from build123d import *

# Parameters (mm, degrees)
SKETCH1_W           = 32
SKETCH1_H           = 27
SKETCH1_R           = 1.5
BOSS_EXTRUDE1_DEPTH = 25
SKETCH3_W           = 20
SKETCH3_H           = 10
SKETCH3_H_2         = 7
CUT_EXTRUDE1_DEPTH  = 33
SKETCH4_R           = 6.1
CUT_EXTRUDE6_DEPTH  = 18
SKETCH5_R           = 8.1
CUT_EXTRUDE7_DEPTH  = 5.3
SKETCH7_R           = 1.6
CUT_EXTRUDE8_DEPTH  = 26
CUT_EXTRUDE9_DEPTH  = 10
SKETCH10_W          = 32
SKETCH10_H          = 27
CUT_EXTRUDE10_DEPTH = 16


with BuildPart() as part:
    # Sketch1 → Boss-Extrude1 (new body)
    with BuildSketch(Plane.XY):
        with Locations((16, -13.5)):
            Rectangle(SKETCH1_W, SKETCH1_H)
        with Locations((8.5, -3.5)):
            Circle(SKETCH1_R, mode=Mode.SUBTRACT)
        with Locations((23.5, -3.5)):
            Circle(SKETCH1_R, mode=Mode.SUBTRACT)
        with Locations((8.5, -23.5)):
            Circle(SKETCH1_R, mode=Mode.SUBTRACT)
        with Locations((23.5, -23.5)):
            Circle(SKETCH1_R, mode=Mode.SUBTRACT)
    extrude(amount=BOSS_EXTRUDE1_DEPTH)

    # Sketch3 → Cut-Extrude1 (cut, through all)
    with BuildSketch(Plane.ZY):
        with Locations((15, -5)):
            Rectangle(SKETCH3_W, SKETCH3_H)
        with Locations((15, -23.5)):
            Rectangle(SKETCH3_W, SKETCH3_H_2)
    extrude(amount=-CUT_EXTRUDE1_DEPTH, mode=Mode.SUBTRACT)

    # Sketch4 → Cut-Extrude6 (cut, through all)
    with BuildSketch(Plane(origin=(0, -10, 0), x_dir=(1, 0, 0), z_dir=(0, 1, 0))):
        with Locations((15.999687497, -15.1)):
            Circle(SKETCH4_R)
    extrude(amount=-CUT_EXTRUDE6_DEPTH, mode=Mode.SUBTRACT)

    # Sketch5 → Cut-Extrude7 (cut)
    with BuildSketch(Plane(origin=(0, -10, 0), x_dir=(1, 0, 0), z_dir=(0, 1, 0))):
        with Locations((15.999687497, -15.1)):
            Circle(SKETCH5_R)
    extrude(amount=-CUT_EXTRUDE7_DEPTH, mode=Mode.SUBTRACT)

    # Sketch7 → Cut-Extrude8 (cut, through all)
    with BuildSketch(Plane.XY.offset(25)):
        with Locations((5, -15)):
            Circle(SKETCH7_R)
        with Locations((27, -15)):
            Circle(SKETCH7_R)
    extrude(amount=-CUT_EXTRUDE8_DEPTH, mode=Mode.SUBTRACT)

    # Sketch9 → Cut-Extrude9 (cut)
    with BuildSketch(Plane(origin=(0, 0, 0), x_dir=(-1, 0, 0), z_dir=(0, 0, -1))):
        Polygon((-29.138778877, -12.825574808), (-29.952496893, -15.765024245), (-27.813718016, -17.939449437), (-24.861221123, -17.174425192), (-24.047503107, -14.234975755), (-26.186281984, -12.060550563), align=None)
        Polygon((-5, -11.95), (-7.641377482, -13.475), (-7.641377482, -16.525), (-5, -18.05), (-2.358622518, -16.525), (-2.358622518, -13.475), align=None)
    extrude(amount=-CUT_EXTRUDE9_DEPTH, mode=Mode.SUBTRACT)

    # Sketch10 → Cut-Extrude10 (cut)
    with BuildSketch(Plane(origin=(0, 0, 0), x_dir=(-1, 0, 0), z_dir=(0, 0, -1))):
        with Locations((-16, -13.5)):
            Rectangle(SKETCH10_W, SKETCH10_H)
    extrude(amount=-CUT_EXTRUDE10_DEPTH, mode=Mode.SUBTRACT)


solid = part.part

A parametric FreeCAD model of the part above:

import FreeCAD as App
import Part
import Sketcher
Q = App.Units.Quantity


def add_polygon(sketch, points):
    """Adds a closed chain of lines whose ends are joined by coincident constraints."""
    first, n = sketch.GeometryCount, len(points)
    for a, b in zip(points, points[1:] + points[:1]):
        sketch.addGeometry(Part.LineSegment(App.Vector(*a, 0), App.Vector(*b, 0)), False)
    for i in range(n):
        sketch.addConstraint(Sketcher.Constraint("Coincident", first + i, 2, first + (i + 1) % n, 1))

doc = App.newDocument("Part")
params = doc.addObject("Spreadsheet::Sheet", "Params")
for row, (alias, value) in enumerate([
    ("sketch1_diameter", "3 mm"),
    ("sketch1_width", "32 mm"),
    ("sketch1_height", "27 mm"),
    ("pad1_length", "25 mm"),
    ("sketch2_width", "10 mm"),
    ("sketch2_width2", "7 mm"),
    ("sketch2_height", "20 mm"),
    ("sketch3_diameter", "12.2 mm"),
    ("sketch4_diameter", "16.2 mm"),
    ("pocket3_length", "5.3 mm"),
    ("sketch5_diameter", "3.2 mm"),
    ("sketch6_height", "3.05 mm"),
    ("pocket5_length", "10 mm"),
    ("sketch7_width", "32 mm"),
    ("sketch7_height", "27 mm"),
    ("pocket6_length", "16 mm"),
], start=1):
    params.set(f"A{row}", alias)
    params.set(f"B{row}", "=" + value)
    params.setAlias(f"B{row}", alias)

body = doc.addObject("PartDesign::Body", "Body")

# Sketch on XY plane
sketch1 = body.newObject("Sketcher::SketchObject", "Sketch")
sketch1.AttachmentSupport = (doc.getObject("XY_Plane"), [""])
sketch1.MapMode = "FlatFace"
add_polygon(sketch1, [(0, 0), (0, -27), (32, -27), (32, 0)])  # lines 0-3
sketch1.addGeometry(Part.Circle(App.Vector(8.5, -23.5, 0), App.Vector(0, 0, 1), 1.5), False)  # 4
sketch1.addGeometry(Part.Circle(App.Vector(23.5, -23.5, 0), App.Vector(0, 0, 1), 1.5), False)  # 5
sketch1.addGeometry(Part.Circle(App.Vector(8.5, -3.5, 0), App.Vector(0, 0, 1), 1.5), False)  # 6
sketch1.addGeometry(Part.Circle(App.Vector(23.5, -3.5, 0), App.Vector(0, 0, 1), 1.5), False)  # 7
sketch1.addConstraint(Sketcher.Constraint("Vertical", 0))
sketch1.addConstraint(Sketcher.Constraint("Horizontal", 1))
sketch1.addConstraint(Sketcher.Constraint("Vertical", 2))
sketch1.addConstraint(Sketcher.Constraint("Horizontal", 3))
sketch1.addConstraint(Sketcher.Constraint("Coincident", 3, 2, -1, 1))
sketch1.addConstraint(Sketcher.Constraint("Equal", 4, 5))
sketch1.addConstraint(Sketcher.Constraint("Equal", 5, 6))
sketch1.addConstraint(Sketcher.Constraint("Equal", 6, 7))
sketch1.addConstraint(Sketcher.Constraint("Horizontal", 4, 3, 5, 3))
sketch1.addConstraint(Sketcher.Constraint("Horizontal", 6, 3, 7, 3))
sketch1.addConstraint(Sketcher.Constraint("Vertical", 4, 3, 6, 3))
sketch1.addConstraint(Sketcher.Constraint("Vertical", 5, 3, 7, 3))
sketch1.addConstraint(Sketcher.Constraint("Diameter", 4, 3.0))
sketch1.addConstraint(Sketcher.Constraint("DistanceX", 1, 1, 1, 2, 32.0))
sketch1.addConstraint(Sketcher.Constraint("DistanceY", 0, 2, 0, 1, 27.0))
sketch1.addConstraint(Sketcher.Constraint("DistanceX", 4, 3, 5, 3, 15.0))
sketch1.addConstraint(Sketcher.Constraint("DistanceY", 4, 3, 6, 3, 20.0))
sketch1.addConstraint(Sketcher.Constraint("DistanceX", -1, 1, 4, 3, 8.5))
sketch1.addConstraint(Sketcher.Constraint("DistanceY", 4, 3, -1, 1, 23.5))
sketch1.setExpression("Constraints[16]", "Params.sketch1_diameter")
sketch1.setExpression("Constraints[17]", "Params.sketch1_width")
sketch1.setExpression("Constraints[18]", "Params.sketch1_height")
pad1 = body.newObject("PartDesign::Pad", "Pad")
pad1.Profile = sketch1
pad1.setExpression("Length", "Params.pad1_length")

# Sketch on YZ plane
sketch2 = body.newObject("Sketcher::SketchObject", "Sketch001")
sketch2.AttachmentSupport = (doc.getObject("YZ_Plane"), [""])
sketch2.MapMode = "FlatFace"
add_polygon(sketch2, [(0, 5), (-10, 5), (-10, 25), (0, 25)])  # lines 0-3
add_polygon(sketch2, [(-20, 5), (-27, 5), (-27, 25), (-20, 25)])  # lines 4-7
sketch2.addConstraint(Sketcher.Constraint("Horizontal", 0))
sketch2.addConstraint(Sketcher.Constraint("Vertical", 1))
sketch2.addConstraint(Sketcher.Constraint("Horizontal", 2))
sketch2.addConstraint(Sketcher.Constraint("Vertical", 3))
sketch2.addConstraint(Sketcher.Constraint("Horizontal", 4))
sketch2.addConstraint(Sketcher.Constraint("Vertical", 5))
sketch2.addConstraint(Sketcher.Constraint("Horizontal", 6))
sketch2.addConstraint(Sketcher.Constraint("Vertical", 7))
sketch2.addConstraint(Sketcher.Constraint("PointOnObject", 2, 2, -2))
sketch2.addConstraint(Sketcher.Constraint("Horizontal", 3, 2, 4, 2))
sketch2.addConstraint(Sketcher.Constraint("Horizontal", 2, 2, 5, 2))
sketch2.addConstraint(Sketcher.Constraint("DistanceX", 0, 2, 0, 1, 10.0))
sketch2.addConstraint(Sketcher.Constraint("DistanceX", 4, 2, 4, 1, 7.0))
sketch2.addConstraint(Sketcher.Constraint("DistanceY", 1, 1, 1, 2, 20.0))
sketch2.addConstraint(Sketcher.Constraint("DistanceY", -1, 1, 0, 2, 5.0))
sketch2.addConstraint(Sketcher.Constraint("DistanceX", 4, 2, -1, 1, 27.0))
sketch2.setExpression("Constraints[19]", "Params.sketch2_width")
sketch2.setExpression("Constraints[20]", "Params.sketch2_width2")
sketch2.setExpression("Constraints[21]", "Params.sketch2_height")
pocket1 = body.newObject("PartDesign::Pocket", "Pocket")
pocket1.Profile = sketch2
pocket1.Type = "ThroughAll"
pocket1.Reversed = True

# Sketch on XZ plane
sketch3 = body.newObject("Sketcher::SketchObject", "Sketch002")
sketch3.AttachmentSupport = (doc.getObject("XZ_Plane"), [""])
sketch3.MapMode = "FlatFace"
sketch3.AttachmentOffset = App.Placement(App.Vector(0, 0, 10), App.Rotation())
sketch3.addGeometry(Part.Circle(App.Vector(16, 15, 0), App.Vector(0, 0, 1), 6), False)
sketch3.addConstraint(Sketcher.Constraint("Diameter", 0, 12.2))
sketch3.addConstraint(Sketcher.Constraint("DistanceY", -1, 1, 0, 3, 15.1))
sketch3.addConstraint(Sketcher.Constraint("DistanceX", -1, 1, 0, 3, 15.999687))
sketch3.setExpression("Constraints[0]", "Params.sketch3_diameter")
pocket2 = body.newObject("PartDesign::Pocket", "Pocket001")
pocket2.Profile = sketch3
pocket2.Type = "ThroughAll"
pocket2.Reversed = True

# Sketch on XZ plane
sketch4 = body.newObject("Sketcher::SketchObject", "Sketch003")
sketch4.AttachmentSupport = (doc.getObject("XZ_Plane"), [""])
sketch4.MapMode = "FlatFace"
sketch4.AttachmentOffset = App.Placement(App.Vector(0, 0, 10), App.Rotation())
sketch4.addGeometry(Part.Circle(App.Vector(16, 15, 0), App.Vector(0, 0, 1), 8), False)
sketch4.addConstraint(Sketcher.Constraint("Diameter", 0, 16.2))
sketch4.addConstraint(Sketcher.Constraint("DistanceY", -1, 1, 0, 3, 15.1))
sketch4.addConstraint(Sketcher.Constraint("DistanceX", -1, 1, 0, 3, 15.999687))
sketch4.setExpression("Constraints[0]", "Params.sketch4_diameter")
pocket3 = body.newObject("PartDesign::Pocket", "Pocket002")
pocket3.Profile = sketch4
pocket3.setExpression("Length", "Params.pocket3_length")
pocket3.Reversed = True

# Sketch on XY plane
sketch5 = body.newObject("Sketcher::SketchObject", "Sketch004")
sketch5.AttachmentSupport = (doc.getObject("XY_Plane"), [""])
sketch5.MapMode = "FlatFace"
sketch5.AttachmentOffset = App.Placement(App.Vector(0, 0, 25), App.Rotation())
sketch5.addGeometry(Part.Circle(App.Vector(5, -15, 0), App.Vector(0, 0, 1), 1.6), False)
sketch5.addGeometry(Part.Circle(App.Vector(27, -15, 0), App.Vector(0, 0, 1), 1.6), False)
sketch5.addConstraint(Sketcher.Constraint("Equal", 0, 1))
sketch5.addConstraint(Sketcher.Constraint("Horizontal", 0, 3, 1, 3))
sketch5.addConstraint(Sketcher.Constraint("Diameter", 0, 3.2))
sketch5.addConstraint(Sketcher.Constraint("DistanceX", -1, 1, 0, 3, 5.0))
sketch5.addConstraint(Sketcher.Constraint("DistanceY", 0, 3, -1, 1, 15.0))
sketch5.addConstraint(Sketcher.Constraint("DistanceX", -1, 1, 1, 3, 27.0))
sketch5.setExpression("Constraints[2]", "Params.sketch5_diameter")
pocket4 = body.newObject("PartDesign::Pocket", "Pocket003")
pocket4.Profile = sketch5
pocket4.Type = "ThroughAll"

# Sketch on XY plane
sketch6 = body.newObject("Sketcher::SketchObject", "Sketch005")
sketch6.AttachmentSupport = (doc.getObject("XY_Plane"), [""])
sketch6.MapMode = "FlatFace"
add_polygon(sketch6, [(29.1, -12.8), (30, -15.8), (27.8, -17.9), (24.9, -17.2), (24, -14.2), (26.2, -12.1)])  # lines 0-5
add_polygon(sketch6, [(5, -11.9), (7.6, -13.5), (7.6, -16.5), (5, -18.1), (2.4, -16.5), (2.4, -13.5)])  # lines 6-11
sketch6.addConstraint(Sketcher.Constraint("Vertical", 7))
sketch6.addConstraint(Sketcher.Constraint("Vertical", 10))
sketch6.addConstraint(Sketcher.Constraint("Parallel", 0, 3))
sketch6.addConstraint(Sketcher.Constraint("Parallel", 1, 4))
sketch6.addConstraint(Sketcher.Constraint("Parallel", 2, 5))
sketch6.addConstraint(Sketcher.Constraint("Parallel", 6, 9))
sketch6.addConstraint(Sketcher.Constraint("Parallel", 8, 11))
sketch6.addConstraint(Sketcher.Constraint("Horizontal", 7, 2, 9, 2))
sketch6.addConstraint(Sketcher.Constraint("Horizontal", 6, 2, 10, 2))
sketch6.addConstraint(Sketcher.Constraint("Vertical", 8, 2, 11, 2))
sketch6.addConstraint(Sketcher.Constraint("Equal", 0, 1))
sketch6.addConstraint(Sketcher.Constraint("Equal", 1, 2))
sketch6.addConstraint(Sketcher.Constraint("Equal", 2, 3))
sketch6.addConstraint(Sketcher.Constraint("Equal", 5, 6))
sketch6.addConstraint(Sketcher.Constraint("Angle", 6, Q("-30 deg")))
sketch6.addConstraint(Sketcher.Constraint("DistanceX", -1, 1, 8, 2, 5.0))
sketch6.addConstraint(Sketcher.Constraint("DistanceY", 7, 2, 7, 1, 3.05))
sketch6.addConstraint(Sketcher.Constraint("DistanceY", 8, 2, 11, 2, 6.1))
sketch6.addConstraint(Sketcher.Constraint("DistanceY", 8, 2, -1, 1, 18.05))
sketch6.addConstraint(Sketcher.Constraint("DistanceY", 2, 2, 0, 2, 1.409401))
sketch6.addConstraint(Sketcher.Constraint("DistanceY", 1, 2, 4, 2, 5.878899))
sketch6.addConstraint(Sketcher.Constraint("DistanceX", 6, 2, 5, 2, 21.497401))
sketch6.addConstraint(Sketcher.Constraint("DistanceX", 9, 2, 2, 2, 22.502599))
sketch6.addConstraint(Sketcher.Constraint("DistanceY", 1, 2, -1, 1, 17.939449))
sketch6.setExpression("Constraints[28]", "Params.sketch6_height")
pocket5 = body.newObject("PartDesign::Pocket", "Pocket004")
pocket5.Profile = sketch6
pocket5.setExpression("Length", "Params.pocket5_length")
pocket5.Reversed = True

# Sketch on XY plane
sketch7 = body.newObject("Sketcher::SketchObject", "Sketch006")
sketch7.AttachmentSupport = (doc.getObject("XY_Plane"), [""])
sketch7.MapMode = "FlatFace"
add_polygon(sketch7, [(32, 0), (32, -27), (0, -27), (0, 0)])  # lines 0-3
sketch7.addConstraint(Sketcher.Constraint("Vertical", 0))
sketch7.addConstraint(Sketcher.Constraint("Horizontal", 1))
sketch7.addConstraint(Sketcher.Constraint("Vertical", 2))
sketch7.addConstraint(Sketcher.Constraint("Horizontal", 3))
sketch7.addConstraint(Sketcher.Constraint("Coincident", 2, 2, -1, 1))
sketch7.addConstraint(Sketcher.Constraint("DistanceX", 1, 2, 1, 1, 32.0))
sketch7.addConstraint(Sketcher.Constraint("DistanceY", 0, 2, 0, 1, 27.0))
sketch7.setExpression("Constraints[9]", "Params.sketch7_width")
sketch7.setExpression("Constraints[10]", "Params.sketch7_height")
pocket6 = body.newObject("PartDesign::Pocket", "Pocket005")
pocket6.Profile = sketch7
pocket6.setExpression("Length", "Params.pocket6_length")
pocket6.Reversed = True

doc.recompute()
